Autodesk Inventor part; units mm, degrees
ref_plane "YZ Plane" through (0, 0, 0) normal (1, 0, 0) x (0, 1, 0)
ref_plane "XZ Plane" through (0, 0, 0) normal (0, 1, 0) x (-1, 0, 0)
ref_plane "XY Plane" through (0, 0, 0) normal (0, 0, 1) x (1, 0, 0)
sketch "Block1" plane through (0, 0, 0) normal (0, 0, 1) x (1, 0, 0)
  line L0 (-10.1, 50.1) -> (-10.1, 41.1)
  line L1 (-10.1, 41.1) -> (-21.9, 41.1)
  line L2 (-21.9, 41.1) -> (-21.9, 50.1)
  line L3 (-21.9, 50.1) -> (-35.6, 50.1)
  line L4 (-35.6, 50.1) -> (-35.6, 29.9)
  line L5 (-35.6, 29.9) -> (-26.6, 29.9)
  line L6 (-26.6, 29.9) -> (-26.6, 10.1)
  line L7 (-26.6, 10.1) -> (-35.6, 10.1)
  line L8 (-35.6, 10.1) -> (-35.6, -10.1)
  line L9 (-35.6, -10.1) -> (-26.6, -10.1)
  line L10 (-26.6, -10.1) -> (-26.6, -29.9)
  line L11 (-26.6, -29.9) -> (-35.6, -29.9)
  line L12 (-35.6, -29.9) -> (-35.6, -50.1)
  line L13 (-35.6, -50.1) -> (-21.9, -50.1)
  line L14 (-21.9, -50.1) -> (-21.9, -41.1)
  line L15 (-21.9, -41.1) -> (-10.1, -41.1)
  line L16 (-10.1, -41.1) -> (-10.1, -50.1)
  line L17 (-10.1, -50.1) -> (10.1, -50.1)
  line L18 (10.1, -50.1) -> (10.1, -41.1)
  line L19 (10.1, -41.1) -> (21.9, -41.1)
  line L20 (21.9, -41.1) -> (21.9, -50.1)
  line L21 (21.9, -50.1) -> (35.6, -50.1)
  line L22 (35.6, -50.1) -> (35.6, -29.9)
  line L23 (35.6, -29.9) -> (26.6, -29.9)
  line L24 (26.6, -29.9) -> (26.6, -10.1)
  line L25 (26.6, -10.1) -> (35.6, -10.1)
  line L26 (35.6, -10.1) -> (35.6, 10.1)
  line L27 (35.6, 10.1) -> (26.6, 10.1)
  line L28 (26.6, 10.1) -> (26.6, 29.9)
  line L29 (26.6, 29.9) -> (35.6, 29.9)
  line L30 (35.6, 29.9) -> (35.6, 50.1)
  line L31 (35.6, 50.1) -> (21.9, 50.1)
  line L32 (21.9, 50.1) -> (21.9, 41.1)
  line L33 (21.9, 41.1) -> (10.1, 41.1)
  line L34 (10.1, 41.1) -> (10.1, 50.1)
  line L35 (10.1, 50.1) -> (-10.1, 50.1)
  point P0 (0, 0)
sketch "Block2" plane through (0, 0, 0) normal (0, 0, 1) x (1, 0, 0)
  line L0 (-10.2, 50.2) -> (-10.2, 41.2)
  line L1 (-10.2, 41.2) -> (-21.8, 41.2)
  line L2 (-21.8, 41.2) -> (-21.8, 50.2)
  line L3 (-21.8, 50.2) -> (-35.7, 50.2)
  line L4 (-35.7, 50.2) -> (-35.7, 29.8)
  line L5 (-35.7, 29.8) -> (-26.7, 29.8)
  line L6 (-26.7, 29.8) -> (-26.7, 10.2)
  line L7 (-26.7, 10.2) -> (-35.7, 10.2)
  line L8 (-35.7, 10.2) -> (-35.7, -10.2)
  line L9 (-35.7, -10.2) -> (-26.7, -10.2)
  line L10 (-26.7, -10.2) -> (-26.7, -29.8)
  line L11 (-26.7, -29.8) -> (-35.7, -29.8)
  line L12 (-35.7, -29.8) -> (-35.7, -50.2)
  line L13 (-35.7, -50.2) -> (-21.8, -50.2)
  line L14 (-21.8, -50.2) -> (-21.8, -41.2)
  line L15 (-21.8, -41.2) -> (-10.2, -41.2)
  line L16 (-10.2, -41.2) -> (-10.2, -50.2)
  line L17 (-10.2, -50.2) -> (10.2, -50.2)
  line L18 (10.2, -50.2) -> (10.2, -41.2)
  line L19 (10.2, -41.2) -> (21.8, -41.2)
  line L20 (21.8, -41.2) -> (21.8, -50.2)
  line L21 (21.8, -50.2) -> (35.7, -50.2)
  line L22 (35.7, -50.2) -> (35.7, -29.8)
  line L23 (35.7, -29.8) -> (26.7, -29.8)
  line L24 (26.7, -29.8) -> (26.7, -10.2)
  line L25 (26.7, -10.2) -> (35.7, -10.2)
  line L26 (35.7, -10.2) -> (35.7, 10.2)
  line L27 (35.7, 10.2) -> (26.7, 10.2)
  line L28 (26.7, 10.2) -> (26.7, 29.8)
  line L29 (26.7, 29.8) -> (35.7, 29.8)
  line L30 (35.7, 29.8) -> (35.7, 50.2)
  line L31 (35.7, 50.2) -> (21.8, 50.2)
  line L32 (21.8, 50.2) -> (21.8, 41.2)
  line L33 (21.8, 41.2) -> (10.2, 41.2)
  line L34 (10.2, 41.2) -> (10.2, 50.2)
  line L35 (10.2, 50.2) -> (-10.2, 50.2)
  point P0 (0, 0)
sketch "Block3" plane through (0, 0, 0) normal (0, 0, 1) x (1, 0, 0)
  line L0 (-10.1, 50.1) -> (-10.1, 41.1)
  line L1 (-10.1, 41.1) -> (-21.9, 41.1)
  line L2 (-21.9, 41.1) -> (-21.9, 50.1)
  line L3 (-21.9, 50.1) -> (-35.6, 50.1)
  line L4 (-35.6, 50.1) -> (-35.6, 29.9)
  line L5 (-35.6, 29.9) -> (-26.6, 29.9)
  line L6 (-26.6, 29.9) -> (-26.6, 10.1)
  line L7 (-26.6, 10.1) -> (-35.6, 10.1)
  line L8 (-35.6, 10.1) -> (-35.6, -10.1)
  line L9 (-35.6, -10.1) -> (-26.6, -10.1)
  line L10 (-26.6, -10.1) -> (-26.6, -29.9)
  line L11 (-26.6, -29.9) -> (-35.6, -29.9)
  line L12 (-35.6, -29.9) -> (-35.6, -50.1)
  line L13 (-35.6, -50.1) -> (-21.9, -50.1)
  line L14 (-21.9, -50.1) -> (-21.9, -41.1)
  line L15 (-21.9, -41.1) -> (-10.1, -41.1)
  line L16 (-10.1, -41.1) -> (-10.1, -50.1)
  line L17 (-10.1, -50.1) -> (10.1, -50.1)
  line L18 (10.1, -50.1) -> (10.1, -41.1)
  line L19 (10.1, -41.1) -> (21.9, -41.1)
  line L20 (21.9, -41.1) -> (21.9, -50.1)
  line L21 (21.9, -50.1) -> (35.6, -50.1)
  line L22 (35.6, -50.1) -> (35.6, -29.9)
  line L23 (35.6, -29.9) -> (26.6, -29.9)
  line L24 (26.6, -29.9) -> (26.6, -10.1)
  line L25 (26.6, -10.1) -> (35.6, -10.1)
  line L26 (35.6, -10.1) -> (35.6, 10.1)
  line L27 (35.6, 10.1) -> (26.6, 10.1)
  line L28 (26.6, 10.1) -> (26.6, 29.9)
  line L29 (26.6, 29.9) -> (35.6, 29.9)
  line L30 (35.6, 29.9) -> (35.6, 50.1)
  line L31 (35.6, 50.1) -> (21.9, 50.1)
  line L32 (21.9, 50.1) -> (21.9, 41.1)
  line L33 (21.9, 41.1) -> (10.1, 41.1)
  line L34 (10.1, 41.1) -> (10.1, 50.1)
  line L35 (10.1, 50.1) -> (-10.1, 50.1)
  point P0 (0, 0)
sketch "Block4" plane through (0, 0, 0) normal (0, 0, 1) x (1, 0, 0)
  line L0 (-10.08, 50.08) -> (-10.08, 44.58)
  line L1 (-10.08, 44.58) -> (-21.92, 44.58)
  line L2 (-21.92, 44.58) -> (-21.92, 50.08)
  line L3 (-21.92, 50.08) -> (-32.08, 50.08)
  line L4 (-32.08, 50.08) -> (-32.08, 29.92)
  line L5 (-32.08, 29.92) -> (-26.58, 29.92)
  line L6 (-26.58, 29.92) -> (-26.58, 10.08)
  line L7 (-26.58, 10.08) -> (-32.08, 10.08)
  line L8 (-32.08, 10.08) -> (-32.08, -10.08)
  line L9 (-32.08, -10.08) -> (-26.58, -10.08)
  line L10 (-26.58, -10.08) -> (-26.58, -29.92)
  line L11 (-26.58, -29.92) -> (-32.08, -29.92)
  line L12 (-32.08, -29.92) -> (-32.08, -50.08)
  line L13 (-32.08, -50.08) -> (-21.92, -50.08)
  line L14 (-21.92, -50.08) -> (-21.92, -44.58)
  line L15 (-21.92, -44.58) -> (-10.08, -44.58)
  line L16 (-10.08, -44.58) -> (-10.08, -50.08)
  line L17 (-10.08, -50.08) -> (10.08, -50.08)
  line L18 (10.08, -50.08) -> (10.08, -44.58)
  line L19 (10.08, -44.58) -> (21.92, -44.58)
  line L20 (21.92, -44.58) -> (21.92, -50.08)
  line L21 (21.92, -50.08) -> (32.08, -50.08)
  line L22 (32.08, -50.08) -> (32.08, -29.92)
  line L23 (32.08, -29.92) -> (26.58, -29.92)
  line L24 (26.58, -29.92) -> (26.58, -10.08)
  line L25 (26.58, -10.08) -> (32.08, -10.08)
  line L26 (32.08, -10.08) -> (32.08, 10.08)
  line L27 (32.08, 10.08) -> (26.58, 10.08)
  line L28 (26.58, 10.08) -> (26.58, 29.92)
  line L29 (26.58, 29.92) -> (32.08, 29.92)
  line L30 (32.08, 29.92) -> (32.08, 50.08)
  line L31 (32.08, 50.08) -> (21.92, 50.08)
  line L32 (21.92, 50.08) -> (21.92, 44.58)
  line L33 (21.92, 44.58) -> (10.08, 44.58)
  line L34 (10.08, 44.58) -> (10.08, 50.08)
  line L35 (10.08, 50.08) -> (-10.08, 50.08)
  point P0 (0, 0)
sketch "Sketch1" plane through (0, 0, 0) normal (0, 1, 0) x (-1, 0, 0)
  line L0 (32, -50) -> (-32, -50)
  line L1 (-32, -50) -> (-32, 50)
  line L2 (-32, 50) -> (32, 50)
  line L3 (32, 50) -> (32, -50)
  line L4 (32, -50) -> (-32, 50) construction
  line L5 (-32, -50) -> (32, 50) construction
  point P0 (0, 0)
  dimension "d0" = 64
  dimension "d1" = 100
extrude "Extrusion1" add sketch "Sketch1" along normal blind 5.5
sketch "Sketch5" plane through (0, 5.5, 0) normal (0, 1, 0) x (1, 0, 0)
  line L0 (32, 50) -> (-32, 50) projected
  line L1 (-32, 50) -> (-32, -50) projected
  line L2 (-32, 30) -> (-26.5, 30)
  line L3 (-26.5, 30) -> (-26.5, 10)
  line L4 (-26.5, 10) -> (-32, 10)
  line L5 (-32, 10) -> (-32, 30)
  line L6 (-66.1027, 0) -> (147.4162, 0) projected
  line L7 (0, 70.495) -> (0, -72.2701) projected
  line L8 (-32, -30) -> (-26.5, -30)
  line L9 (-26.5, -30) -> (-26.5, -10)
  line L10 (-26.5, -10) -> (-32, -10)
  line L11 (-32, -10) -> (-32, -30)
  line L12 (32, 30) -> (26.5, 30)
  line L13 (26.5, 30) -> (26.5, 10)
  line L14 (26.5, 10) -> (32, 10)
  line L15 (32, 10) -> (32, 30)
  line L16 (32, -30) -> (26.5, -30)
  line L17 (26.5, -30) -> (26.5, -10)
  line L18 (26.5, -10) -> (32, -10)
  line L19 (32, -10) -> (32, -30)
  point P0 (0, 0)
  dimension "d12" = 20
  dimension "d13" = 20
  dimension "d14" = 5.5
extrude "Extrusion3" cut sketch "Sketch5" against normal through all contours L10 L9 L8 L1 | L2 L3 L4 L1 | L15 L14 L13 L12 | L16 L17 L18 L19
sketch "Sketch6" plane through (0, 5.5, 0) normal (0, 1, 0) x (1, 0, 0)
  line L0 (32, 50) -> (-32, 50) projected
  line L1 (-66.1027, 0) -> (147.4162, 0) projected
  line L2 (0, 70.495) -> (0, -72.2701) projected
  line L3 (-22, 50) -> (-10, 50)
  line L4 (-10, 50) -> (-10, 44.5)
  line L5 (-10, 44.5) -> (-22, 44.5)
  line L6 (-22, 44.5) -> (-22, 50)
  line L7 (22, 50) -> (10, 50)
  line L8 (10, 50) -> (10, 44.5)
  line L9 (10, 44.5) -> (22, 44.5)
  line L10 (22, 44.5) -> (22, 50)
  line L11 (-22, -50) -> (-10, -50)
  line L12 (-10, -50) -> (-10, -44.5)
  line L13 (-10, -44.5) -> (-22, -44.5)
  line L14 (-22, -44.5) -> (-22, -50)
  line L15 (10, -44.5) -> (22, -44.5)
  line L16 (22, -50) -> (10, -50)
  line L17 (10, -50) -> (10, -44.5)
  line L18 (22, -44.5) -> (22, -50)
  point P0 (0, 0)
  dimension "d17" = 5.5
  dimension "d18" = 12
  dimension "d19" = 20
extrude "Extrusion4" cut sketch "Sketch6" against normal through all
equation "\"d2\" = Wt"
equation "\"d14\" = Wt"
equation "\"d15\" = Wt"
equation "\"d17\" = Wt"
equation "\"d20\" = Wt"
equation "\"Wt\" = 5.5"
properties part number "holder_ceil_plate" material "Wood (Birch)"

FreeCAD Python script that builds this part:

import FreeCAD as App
import Part
import Sketcher
Q = App.Units.Quantity


def add_polygon(sketch, points):
    """Adds a closed chain of lines whose ends are joined by coincident constraints."""
    first, n = sketch.GeometryCount, len(points)
    for a, b in zip(points, points[1:] + points[:1]):
        sketch.addGeometry(Part.LineSegment(App.Vector(*a, 0), App.Vector(*b, 0)), False)
    for i in range(n):
        sketch.addConstraint(Sketcher.Constraint("Coincident", first + i, 2, first + (i + 1) % n, 1))

doc = App.newDocument("Part")
params = doc.addObject("Spreadsheet::Sheet", "Params")
for row, (alias, value) in enumerate([
    ("sketch1_width", "64 mm"),
    ("sketch1_height", "100 mm"),
    ("pad1_length", "5.5 mm"),
    ("sketch2_height", "20 mm"),
    ("sketch2_width", "5.5 mm"),
    ("sketch3_width", "12 mm"),
    ("sketch3_height", "5.5 mm"),
], start=1):
    params.set(f"A{row}", alias)
    params.set(f"B{row}", "=" + value)
    params.setAlias(f"B{row}", alias)

body = doc.addObject("PartDesign::Body", "Body")

# Sketch on XZ plane
sketch1 = body.newObject("Sketcher::SketchObject", "Sketch")
sketch1.AttachmentSupport = (doc.getObject("XZ_Plane"), [""])
sketch1.MapMode = "FlatFace"
add_polygon(sketch1, [(32, -50), (-32, -50), (-32, 50), (32, 50)])  # lines 0-3
sketch1.addConstraint([
    Sketcher.Constraint("Horizontal", 0),
    Sketcher.Constraint("Vertical", 1),
    Sketcher.Constraint("Horizontal", 2),
    Sketcher.Constraint("Vertical", 3),
    Sketcher.Constraint("Symmetric", 0, 2, 2, 2, -1, 1),
    Sketcher.Constraint("DistanceX", 0, 2, 0, 1, Q("64 mm")),
    Sketcher.Constraint("DistanceY", 1, 1, 1, 2, Q("100 mm")),
])
sketch1.setExpression("Constraints[9]", "Params.sketch1_width")
sketch1.setExpression("Constraints[10]", "Params.sketch1_height")
pad1 = body.newObject("PartDesign::Pad", "Pad")
pad1.Profile = sketch1
pad1.setExpression("Length", "Params.pad1_length")
pad1.Reversed = True

# Sketch on XZ plane
sketch2 = body.newObject("Sketcher::SketchObject", "Sketch001")
sketch2.AttachmentSupport = (doc.getObject("XZ_Plane"), [""])
sketch2.MapMode = "FlatFace"
sketch2.AttachmentOffset = App.Placement(App.Vector(0, 0, -5.5), App.Rotation())
add_polygon(sketch2, [(-26, 10), (-32, 10), (-32, 30), (-26, 30)])  # lines 0-3
add_polygon(sketch2, [(-26, -30), (-32, -30), (-32, -10), (-26, -10)])  # lines 4-7
add_polygon(sketch2, [(32, -10), (32, -30), (26, -30), (26, -10)])  # lines 8-11
add_polygon(sketch2, [(26, 30), (32, 30), (32, 10), (26, 10)])  # lines 12-15
sketch2.addConstraint([
    Sketcher.Constraint("Horizontal", 0),
    Sketcher.Constraint("Vertical", 1),
    Sketcher.Constraint("Horizontal", 2),
    Sketcher.Constraint("Vertical", 3),
    Sketcher.Constraint("Horizontal", 4),
    Sketcher.Constraint("Vertical", 5),
    Sketcher.Constraint("Horizontal", 6),
    Sketcher.Constraint("Vertical", 7),
    Sketcher.Constraint("Vertical", 8),
    Sketcher.Constraint("Horizontal", 9),
    Sketcher.Constraint("Vertical", 10),
    Sketcher.Constraint("Horizontal", 11),
    Sketcher.Constraint("Horizontal", 12),
    Sketcher.Constraint("Vertical", 13),
    Sketcher.Constraint("Horizontal", 14),
    Sketcher.Constraint("Vertical", 15),
    Sketcher.Constraint("Symmetric", 1, 2, 8, 2, -1, 1),
    Sketcher.Constraint("Symmetric", 3, 2, 10, 2, -1, 1),
    Sketcher.Constraint("Symmetric", 4, 2, 12, 2, -1, 1),
    Sketcher.Constraint("Symmetric", 6, 2, 14, 2, -1, 1),
    Sketcher.Constraint("Symmetric", 4, 2, 8, 2, -2),
    Sketcher.Constraint("Symmetric", 6, 2, 10, 2, -2),
    Sketcher.Constraint("DistanceY", 1, 1, 1, 2, Q("20 mm")),
    Sketcher.Constraint("DistanceX", 0, 2, 0, 1, Q("5.5 mm")),
    Sketcher.Constraint("DistanceY", 5, 2, 0, 2, Q("20 mm")),
    Sketcher.Constraint("DistanceX", 0, 2, -1, 1, Q("32 mm")),
])
sketch2.setExpression("Constraints[38]", "Params.sketch2_height")
sketch2.setExpression("Constraints[39]", "Params.sketch2_width")
pocket1 = body.newObject("PartDesign::Pocket", "Pocket")
pocket1.Profile = sketch2
pocket1.Type = "ThroughAll"
pocket1.Reversed = True

# Sketch on XZ plane
sketch3 = body.newObject("Sketcher::SketchObject", "Sketch002")
sketch3.AttachmentSupport = (doc.getObject("XZ_Plane"), [""])
sketch3.MapMode = "FlatFace"
sketch3.AttachmentOffset = App.Placement(App.Vector(0, 0, -5.5), App.Rotation())
add_polygon(sketch3, [(22, -44), (22, -50), (10, -50), (10, -44)])  # lines 0-3
add_polygon(sketch3, [(-10, -44), (-10, -50), (-22, -50), (-22, -44)])  # lines 4-7
add_polygon(sketch3, [(-22, 44), (-22, 50), (-10, 50), (-10, 44)])  # lines 8-11
add_polygon(sketch3, [(22, 44), (10, 44), (10, 50), (22, 50)])  # lines 12-15
sketch3.addConstraint([
    Sketcher.Constraint("Vertical", 0),
    Sketcher.Constraint("Horizontal", 1),
    Sketcher.Constraint("Vertical", 2),
    Sketcher.Constraint("Horizontal", 3),
    Sketcher.Constraint("Vertical", 4),
    Sketcher.Constraint("Horizontal", 5),
    Sketcher.Constraint("Vertical", 6),
    Sketcher.Constraint("Horizontal", 7),
    Sketcher.Constraint("Vertical", 8),
    Sketcher.Constraint("Horizontal", 9),
    Sketcher.Constraint("Vertical", 10),
    Sketcher.Constraint("Horizontal", 11),
    Sketcher.Constraint("Horizontal", 12),
    Sketcher.Constraint("Vertical", 13),
    Sketcher.Constraint("Horizontal", 14),
    Sketcher.Constraint("Vertical", 15),
    Sketcher.Constraint("Symmetric", 0, 2, 8, 2, -1, 1),
    Sketcher.Constraint("Symmetric", 2, 2, 10, 2, -1, 1),
    Sketcher.Constraint("Symmetric", 7, 2, 12, 2, -1, 1),
    Sketcher.Constraint("Symmetric", 5, 2, 14, 2, -1, 1),
    Sketcher.Constraint("Symmetric", 1, 2, 4, 2, -2),
    Sketcher.Constraint("Symmetric", 3, 2, 6, 2, -2),
    Sketcher.Constraint("DistanceX", 1, 2, 1, 1, Q("12 mm")),
    Sketcher.Constraint("DistanceY", 0, 2, 0, 1, Q("5.5 mm")),
    Sketcher.Constraint("DistanceX", 4, 2, 1, 2, Q("20 mm")),
    Sketcher.Constraint("DistanceY", 0, 2, -1, 1, Q("50 mm")),
])
sketch3.setExpression("Constraints[38]", "Params.sketch3_width")
sketch3.setExpression("Constraints[39]", "Params.sketch3_height")
pocket2 = body.newObject("PartDesign::Pocket", "Pocket001")
pocket2.Profile = sketch3
pocket2.Type = "ThroughAll"
pocket2.Reversed = True

doc.recompute()
